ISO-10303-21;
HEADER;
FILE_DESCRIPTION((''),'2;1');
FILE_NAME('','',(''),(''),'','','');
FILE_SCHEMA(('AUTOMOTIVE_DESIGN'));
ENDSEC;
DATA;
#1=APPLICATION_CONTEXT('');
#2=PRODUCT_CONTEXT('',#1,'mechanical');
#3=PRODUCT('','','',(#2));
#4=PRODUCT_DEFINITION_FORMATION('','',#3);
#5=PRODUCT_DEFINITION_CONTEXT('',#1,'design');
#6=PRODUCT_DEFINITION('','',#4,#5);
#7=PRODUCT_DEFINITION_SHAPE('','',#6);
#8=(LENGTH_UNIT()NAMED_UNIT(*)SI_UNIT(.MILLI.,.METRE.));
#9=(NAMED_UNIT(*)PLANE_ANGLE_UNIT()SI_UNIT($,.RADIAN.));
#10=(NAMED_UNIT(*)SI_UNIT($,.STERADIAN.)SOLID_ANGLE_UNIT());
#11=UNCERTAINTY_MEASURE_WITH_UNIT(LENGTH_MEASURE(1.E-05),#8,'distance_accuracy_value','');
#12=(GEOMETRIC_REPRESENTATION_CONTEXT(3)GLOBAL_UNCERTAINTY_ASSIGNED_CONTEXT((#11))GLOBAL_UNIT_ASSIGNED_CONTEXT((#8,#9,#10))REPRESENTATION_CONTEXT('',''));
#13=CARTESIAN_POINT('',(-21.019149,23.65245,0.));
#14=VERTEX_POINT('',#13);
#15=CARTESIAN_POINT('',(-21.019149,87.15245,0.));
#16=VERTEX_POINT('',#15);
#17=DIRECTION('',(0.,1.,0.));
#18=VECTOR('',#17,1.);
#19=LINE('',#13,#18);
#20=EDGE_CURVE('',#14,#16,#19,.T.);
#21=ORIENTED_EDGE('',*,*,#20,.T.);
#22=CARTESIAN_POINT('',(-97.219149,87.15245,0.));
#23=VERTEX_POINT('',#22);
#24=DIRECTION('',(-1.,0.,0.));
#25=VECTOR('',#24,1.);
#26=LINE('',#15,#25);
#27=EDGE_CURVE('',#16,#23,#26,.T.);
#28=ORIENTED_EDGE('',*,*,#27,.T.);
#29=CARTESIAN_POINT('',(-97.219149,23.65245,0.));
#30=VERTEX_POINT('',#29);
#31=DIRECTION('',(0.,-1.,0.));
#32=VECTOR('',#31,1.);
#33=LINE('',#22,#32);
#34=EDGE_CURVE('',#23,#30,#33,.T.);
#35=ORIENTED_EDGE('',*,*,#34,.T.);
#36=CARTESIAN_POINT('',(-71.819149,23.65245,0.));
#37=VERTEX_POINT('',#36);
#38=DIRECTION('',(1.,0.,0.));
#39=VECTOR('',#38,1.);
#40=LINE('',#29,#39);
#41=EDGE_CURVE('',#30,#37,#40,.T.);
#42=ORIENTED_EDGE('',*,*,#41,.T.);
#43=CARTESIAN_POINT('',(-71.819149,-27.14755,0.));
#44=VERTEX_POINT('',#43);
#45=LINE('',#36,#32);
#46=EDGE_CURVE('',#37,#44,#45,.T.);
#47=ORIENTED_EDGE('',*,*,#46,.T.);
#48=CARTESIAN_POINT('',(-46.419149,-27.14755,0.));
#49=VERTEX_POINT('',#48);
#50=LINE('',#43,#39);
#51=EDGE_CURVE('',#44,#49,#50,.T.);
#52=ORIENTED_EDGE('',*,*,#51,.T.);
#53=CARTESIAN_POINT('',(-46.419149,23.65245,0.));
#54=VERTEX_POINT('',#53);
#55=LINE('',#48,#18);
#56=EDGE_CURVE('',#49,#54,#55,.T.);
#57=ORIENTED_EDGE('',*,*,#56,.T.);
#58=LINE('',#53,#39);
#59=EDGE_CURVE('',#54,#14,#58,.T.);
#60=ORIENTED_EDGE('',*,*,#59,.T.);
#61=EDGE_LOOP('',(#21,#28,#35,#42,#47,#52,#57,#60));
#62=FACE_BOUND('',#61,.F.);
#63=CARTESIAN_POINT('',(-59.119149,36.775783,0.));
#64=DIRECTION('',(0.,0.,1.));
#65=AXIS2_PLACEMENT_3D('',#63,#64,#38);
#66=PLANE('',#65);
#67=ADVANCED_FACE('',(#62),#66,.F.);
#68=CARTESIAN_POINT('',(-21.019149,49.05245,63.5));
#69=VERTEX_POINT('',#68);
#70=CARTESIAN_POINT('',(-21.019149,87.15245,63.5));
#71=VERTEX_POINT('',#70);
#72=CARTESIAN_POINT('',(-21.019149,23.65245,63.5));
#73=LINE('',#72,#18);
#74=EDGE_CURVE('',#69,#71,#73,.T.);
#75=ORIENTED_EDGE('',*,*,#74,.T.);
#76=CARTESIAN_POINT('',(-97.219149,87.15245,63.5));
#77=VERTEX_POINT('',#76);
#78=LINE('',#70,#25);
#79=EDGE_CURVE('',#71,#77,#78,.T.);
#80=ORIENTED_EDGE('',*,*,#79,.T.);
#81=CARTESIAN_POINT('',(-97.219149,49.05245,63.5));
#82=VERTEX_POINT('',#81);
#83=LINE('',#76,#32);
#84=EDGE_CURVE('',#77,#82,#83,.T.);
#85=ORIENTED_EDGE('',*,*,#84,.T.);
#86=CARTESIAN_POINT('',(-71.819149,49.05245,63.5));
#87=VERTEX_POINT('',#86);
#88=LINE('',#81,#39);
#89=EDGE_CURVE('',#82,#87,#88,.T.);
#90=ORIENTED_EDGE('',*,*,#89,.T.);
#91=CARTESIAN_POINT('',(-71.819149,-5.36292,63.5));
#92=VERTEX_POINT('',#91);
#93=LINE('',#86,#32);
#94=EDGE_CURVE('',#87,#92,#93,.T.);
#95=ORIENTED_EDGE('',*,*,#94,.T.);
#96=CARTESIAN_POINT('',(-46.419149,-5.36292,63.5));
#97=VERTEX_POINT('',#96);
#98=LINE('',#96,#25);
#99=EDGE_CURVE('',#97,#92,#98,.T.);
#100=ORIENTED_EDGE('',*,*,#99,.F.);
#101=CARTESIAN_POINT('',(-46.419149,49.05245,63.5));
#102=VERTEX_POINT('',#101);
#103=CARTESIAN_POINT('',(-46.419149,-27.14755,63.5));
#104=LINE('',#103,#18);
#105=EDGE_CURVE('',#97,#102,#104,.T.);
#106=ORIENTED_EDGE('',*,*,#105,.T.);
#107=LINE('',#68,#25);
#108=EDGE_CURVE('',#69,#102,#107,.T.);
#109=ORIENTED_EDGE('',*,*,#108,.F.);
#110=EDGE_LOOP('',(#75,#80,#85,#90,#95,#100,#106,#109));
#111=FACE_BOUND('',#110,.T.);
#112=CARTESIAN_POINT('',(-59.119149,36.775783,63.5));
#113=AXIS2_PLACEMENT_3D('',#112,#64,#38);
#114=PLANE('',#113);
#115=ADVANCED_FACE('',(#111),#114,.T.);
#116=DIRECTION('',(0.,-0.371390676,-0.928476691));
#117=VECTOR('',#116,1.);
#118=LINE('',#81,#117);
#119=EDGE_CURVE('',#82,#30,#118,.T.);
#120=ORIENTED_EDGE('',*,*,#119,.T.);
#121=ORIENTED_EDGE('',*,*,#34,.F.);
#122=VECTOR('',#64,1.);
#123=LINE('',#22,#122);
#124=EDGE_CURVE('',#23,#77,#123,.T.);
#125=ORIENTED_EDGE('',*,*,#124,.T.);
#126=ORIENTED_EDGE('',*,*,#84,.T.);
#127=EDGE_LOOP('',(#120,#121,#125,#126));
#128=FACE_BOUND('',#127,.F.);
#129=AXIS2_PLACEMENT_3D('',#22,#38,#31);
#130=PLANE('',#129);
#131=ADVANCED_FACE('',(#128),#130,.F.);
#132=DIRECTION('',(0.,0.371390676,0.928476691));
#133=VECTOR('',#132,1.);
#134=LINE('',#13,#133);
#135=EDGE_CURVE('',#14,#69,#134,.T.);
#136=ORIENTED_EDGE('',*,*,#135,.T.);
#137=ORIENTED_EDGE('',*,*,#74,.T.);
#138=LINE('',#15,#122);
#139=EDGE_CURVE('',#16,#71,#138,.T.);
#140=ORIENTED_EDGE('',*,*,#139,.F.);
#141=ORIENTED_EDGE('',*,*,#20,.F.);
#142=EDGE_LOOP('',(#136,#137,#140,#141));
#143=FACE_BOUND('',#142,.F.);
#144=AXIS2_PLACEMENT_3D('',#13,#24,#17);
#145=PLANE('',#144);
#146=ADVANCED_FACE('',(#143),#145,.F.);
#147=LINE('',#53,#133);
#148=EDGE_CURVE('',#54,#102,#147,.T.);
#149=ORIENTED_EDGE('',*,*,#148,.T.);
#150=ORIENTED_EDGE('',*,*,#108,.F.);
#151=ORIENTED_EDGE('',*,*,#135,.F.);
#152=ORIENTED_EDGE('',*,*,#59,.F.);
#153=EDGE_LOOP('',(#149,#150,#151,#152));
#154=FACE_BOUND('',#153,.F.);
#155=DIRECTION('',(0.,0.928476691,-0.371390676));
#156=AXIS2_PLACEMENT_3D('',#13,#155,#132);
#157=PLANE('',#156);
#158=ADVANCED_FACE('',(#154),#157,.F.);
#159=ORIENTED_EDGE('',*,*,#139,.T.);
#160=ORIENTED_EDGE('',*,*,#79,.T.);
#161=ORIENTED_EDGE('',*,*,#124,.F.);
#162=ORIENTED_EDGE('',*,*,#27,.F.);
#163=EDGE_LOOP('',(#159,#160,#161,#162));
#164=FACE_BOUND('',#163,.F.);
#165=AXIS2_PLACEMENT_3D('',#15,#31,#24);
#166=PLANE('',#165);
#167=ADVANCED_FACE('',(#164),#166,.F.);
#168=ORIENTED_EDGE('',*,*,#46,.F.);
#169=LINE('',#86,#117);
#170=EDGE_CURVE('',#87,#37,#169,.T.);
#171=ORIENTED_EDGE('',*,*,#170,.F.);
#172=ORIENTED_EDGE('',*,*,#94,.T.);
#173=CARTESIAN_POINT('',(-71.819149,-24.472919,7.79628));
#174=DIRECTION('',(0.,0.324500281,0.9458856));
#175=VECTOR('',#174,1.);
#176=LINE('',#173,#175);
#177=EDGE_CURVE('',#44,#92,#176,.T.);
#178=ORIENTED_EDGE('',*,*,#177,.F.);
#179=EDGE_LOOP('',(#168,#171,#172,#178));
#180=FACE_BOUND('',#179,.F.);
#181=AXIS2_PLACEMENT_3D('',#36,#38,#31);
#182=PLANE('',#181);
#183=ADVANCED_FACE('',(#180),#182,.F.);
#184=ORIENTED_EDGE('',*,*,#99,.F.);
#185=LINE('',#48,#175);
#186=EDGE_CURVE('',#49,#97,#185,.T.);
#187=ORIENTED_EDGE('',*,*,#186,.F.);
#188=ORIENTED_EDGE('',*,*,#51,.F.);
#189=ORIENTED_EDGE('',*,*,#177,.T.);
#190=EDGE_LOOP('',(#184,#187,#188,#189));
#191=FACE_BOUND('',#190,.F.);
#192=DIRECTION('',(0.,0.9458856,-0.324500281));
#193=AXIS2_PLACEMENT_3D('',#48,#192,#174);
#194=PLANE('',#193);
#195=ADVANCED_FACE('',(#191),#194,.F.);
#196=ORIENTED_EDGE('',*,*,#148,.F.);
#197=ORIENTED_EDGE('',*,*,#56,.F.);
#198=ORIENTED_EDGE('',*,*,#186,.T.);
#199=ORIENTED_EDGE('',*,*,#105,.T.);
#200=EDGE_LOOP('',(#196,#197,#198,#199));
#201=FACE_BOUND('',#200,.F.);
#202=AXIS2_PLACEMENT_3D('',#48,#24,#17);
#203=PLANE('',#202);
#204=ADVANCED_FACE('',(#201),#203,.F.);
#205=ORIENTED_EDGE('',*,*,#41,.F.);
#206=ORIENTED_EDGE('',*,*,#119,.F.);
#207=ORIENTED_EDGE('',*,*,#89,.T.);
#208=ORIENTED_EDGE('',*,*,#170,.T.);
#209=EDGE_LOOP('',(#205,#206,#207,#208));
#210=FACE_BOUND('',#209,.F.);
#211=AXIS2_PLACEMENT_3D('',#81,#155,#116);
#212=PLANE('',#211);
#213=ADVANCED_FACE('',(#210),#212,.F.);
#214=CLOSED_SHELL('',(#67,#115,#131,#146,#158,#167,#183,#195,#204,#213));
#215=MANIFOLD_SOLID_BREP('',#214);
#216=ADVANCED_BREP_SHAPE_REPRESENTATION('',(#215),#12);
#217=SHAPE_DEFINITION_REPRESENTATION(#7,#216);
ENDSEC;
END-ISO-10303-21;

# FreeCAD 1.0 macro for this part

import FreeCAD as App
import Part
import Sketcher
from FreeCAD import Vector
Q = App.Units.Quantity


def add_polygon(sketch, points):
    """Adds a closed chain of lines whose ends are joined by coincident constraints."""
    first, n = sketch.GeometryCount, len(points)
    for a, b in zip(points, points[1:] + points[:1]):
        sketch.addGeometry(Part.LineSegment(App.Vector(*a, 0), App.Vector(*b, 0)), False)
    for i in range(n):
        sketch.addConstraint(Sketcher.Constraint("Coincident", first + i, 2, first + (i + 1) % n, 1))

doc = App.newDocument("Part")
params = doc.addObject("Spreadsheet::Sheet", "Params")
for row, (alias, value) in enumerate([
    ("sketch1_width", "3 in"),
    ("sketch1_height", "2 in"),
    ("sketch1_height2", "2.5 in"),
    ("pad1_length", "2.5 in"),
    ("sketch2_width", "1 in"),
    ("sketch2_height", "2.5 in"),
    ("pocket1_length", "1 in"),
    ("sketch3_width", "1 in"),
    ("sketch3_height", "2.5 in"),
    ("pocket2_length", "1 in"),
    ("sketch4_height", "2.5 in"),
], start=1):
    params.set(f"A{row}", alias)
    params.set(f"B{row}", "=" + value)
    params.setAlias(f"B{row}", alias)

body = doc.addObject("PartDesign::Body", "Body")

# Sketch on XY plane
sketch1 = doc.addObject("Sketcher::SketchObject", "Sketch")
body.addObject(sketch1)
sketch1.AttachmentSupport = (doc.XY_Plane, [""])
sketch1.MapMode = "FlatFace"
add_polygon(sketch1, [(-21.019149, 87.15245), (-97.219149, 87.15245), (-97.219149, 23.65245), (-71.819149, 23.65245), (-71.819149, -27.14755), (-46.419149, -27.14755), (-46.419149, 23.65245), (-21.019149, 23.65245)])  # lines 0-7
sketch1.addConstraint([
    Sketcher.Constraint("Horizontal", 0),
    Sketcher.Constraint("Vertical", 1),
    Sketcher.Constraint("Horizontal", 2),
    Sketcher.Constraint("Vertical", 3),
    Sketcher.Constraint("Horizontal", 4),
    Sketcher.Constraint("Vertical", 5),
    Sketcher.Constraint("Horizontal", 6),
    Sketcher.Constraint("Vertical", 7),
    Sketcher.Constraint("Horizontal", 2, 2, 5, 2),
    Sketcher.Constraint("Equal", 2, 4),
    Sketcher.Constraint("Equal", 4, 6),
    Sketcher.Constraint("DistanceX", 0, 2, 0, 1, Q("3 in")),
    Sketcher.Constraint("DistanceY", 3, 2, 3, 1, Q("2 in")),
    Sketcher.Constraint("DistanceY", 1, 2, 1, 1, Q("2.5 in")),
    Sketcher.Constraint("DistanceX", 0, 2, -1, 1, Q("97.219149 mm")),
    Sketcher.Constraint("DistanceY", -1, 1, 0, 2, Q("87.15245 mm")),
])
sketch1.setExpression("Constraints[19]", "Params.sketch1_width")
sketch1.setExpression("Constraints[20]", "Params.sketch1_height")
sketch1.setExpression("Constraints[21]", "Params.sketch1_height2")
pad1 = doc.addObject("PartDesign::Pad", "Pad")
body.addObject(pad1)
pad1.Profile = sketch1
pad1.setExpression("Length", "Params.pad1_length")

# Sketch on YZ plane
sketch2 = doc.addObject("Sketcher::SketchObject", "Sketch001")
body.addObject(sketch2)
sketch2.AttachmentSupport = (doc.YZ_Plane, [""])
sketch2.MapMode = "FlatFace"
sketch2.AttachmentOffset = App.Placement(Vector(0, 0, -97.219149), App.Rotation())
add_polygon(sketch2, [(23.65245, 63.5), (49.05245, 63.5), (23.65245, 0)])  # lines 0-2
sketch2.addConstraint([
    Sketcher.Constraint("Horizontal", 0),
    Sketcher.Constraint("Vertical", 2),
    Sketcher.Constraint("PointOnObject", 1, 2, -1),
    Sketcher.Constraint("DistanceX", 0, 1, 0, 2, Q("1 in")),
    Sketcher.Constraint("DistanceY", 2, 1, 2, 2, Q("2.5 in")),
    Sketcher.Constraint("DistanceX", -1, 1, 0, 2, Q("49.05245 mm")),
])
sketch2.setExpression("Constraints[6]", "Params.sketch2_width")
sketch2.setExpression("Constraints[7]", "Params.sketch2_height")
pocket1 = doc.addObject("PartDesign::Pocket", "Pocket")
body.addObject(pocket1)
pocket1.Profile = sketch2
pocket1.setExpression("Length", "Params.pocket1_length")
pocket1.Reversed = True

# Sketch on YZ plane
sketch3 = doc.addObject("Sketcher::SketchObject", "Sketch002")
body.addObject(sketch3)
sketch3.AttachmentSupport = (doc.YZ_Plane, [""])
sketch3.MapMode = "FlatFace"
sketch3.AttachmentOffset = App.Placement(Vector(0, 0, -21.019149), App.Rotation())
add_polygon(sketch3, [(23.65245, 0), (49.05245, 63.5), (23.65245, 63.5)])  # lines 0-2
sketch3.addConstraint([
    Sketcher.Constraint("Horizontal", 1),
    Sketcher.Constraint("Vertical", 2),
    Sketcher.Constraint("PointOnObject", 2, 2, -1),
    Sketcher.Constraint("DistanceX", 1, 2, 1, 1, Q("1 in")),
    Sketcher.Constraint("DistanceY", 2, 2, 2, 1, Q("2.5 in")),
    Sketcher.Constraint("DistanceX", -1, 1, 0, 2, Q("49.05245 mm")),
])
sketch3.setExpression("Constraints[6]", "Params.sketch3_width")
sketch3.setExpression("Constraints[7]", "Params.sketch3_height")
pocket2 = doc.addObject("PartDesign::Pocket", "Pocket001")
body.addObject(pocket2)
pocket2.Profile = sketch3
pocket2.setExpression("Length", "Params.pocket2_length")

# Sketch on YZ plane
sketch4 = doc.addObject("Sketcher::SketchObject", "Sketch003")
body.addObject(sketch4)
sketch4.AttachmentSupport = (doc.YZ_Plane, [""])
sketch4.MapMode = "FlatFace"
sketch4.AttachmentOffset = App.Placement(Vector(0, 0, -46.419149), App.Rotation())
add_polygon(sketch4, [(-27.14755, 0), (-5.36292, 63.5), (-27.14755, 63.5)])  # lines 0-2
sketch4.addConstraint([
    Sketcher.Constraint("Horizontal", 1),
    Sketcher.Constraint("Vertical", 2),
    Sketcher.Constraint("PointOnObject", 2, 2, -1),
    Sketcher.Constraint("DistanceY", 2, 2, 2, 1, Q("2.5 in")),
    Sketcher.Constraint("DistanceX", 1, 2, 1, 1, Q("21.78463 mm")),
    Sketcher.Constraint("DistanceX", 0, 2, -1, 1, Q("5.36292 mm")),
])
sketch4.setExpression("Constraints[6]", "Params.sketch4_height")
pocket3 = doc.addObject("PartDesign::Pocket", "Pocket002")
body.addObject(pocket3)
pocket3.Profile = sketch4
pocket3.Type = "ThroughAll"

doc.recompute()
